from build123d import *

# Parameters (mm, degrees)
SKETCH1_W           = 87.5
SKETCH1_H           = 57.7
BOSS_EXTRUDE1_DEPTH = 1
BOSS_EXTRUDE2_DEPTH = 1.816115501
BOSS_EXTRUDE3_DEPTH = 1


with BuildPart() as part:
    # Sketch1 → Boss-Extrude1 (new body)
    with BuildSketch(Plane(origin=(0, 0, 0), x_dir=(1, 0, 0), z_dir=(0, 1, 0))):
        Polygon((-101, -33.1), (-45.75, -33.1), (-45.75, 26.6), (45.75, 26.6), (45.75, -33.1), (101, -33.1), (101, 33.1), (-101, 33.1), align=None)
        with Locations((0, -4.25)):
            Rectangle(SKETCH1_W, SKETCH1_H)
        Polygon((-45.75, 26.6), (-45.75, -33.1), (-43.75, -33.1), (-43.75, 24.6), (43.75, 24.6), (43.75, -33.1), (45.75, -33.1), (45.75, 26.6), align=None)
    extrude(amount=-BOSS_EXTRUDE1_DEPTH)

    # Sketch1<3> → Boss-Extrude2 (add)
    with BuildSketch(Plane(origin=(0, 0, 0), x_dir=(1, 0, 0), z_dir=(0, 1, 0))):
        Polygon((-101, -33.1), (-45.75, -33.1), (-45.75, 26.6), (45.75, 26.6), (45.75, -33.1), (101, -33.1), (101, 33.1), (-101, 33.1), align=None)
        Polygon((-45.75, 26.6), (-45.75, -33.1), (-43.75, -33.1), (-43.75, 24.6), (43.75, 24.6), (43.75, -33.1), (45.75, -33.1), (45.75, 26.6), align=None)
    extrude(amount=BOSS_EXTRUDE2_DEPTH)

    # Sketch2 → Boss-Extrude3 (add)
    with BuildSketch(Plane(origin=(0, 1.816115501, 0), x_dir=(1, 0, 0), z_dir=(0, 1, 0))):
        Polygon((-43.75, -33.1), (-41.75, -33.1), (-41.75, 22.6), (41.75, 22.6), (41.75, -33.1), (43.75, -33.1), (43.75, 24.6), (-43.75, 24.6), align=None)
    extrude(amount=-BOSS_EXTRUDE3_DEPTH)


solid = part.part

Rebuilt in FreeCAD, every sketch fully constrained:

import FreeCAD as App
import Part
import Sketcher
Q = App.Units.Quantity

doc = App.newDocument("Part")
body = doc.addObject("PartDesign::Body", "Body")

sketch1 = body.newObject("Sketcher::SketchObject", "Sketch")
sketch1.AttachmentSupport = (doc.getObject("XZ_Plane"), [""])
sketch1.MapMode = "FlatFace"
sketch1.addGeometry([
    Part.LineSegment(App.Vector(-101, 33.1, 0), App.Vector(101, 33.1, 0)),
    Part.LineSegment(App.Vector(101, 33.1, 0), App.Vector(101, -33.1, 0)),
    Part.LineSegment(App.Vector(101, -33.1, 0), App.Vector(-101, -33.1, 0)),
    Part.LineSegment(App.Vector(-101, -33.1, 0), App.Vector(-101, 33.1, 0)),
], False)
sketch1.addConstraint([
    Sketcher.Constraint("Coincident", 0, 2, 1, 1),
    Sketcher.Constraint("Coincident", 1, 2, 2, 1),
    Sketcher.Constraint("Coincident", 2, 2, 3, 1),
    Sketcher.Constraint("Coincident", 3, 2, 0, 1),
    Sketcher.Constraint("Horizontal", 0),
    Sketcher.Constraint("Vertical", 1),
    Sketcher.Constraint("Horizontal", 2),
    Sketcher.Constraint("Vertical", 3),
    Sketcher.Constraint("Symmetric", 0, 2, 2, 2, -1, 1),
    Sketcher.Constraint("DistanceX", 0, 1, 0, 2, Q("202 mm")),
    Sketcher.Constraint("DistanceY", 1, 2, 1, 1, Q("66.2 mm")),
])
pad1 = body.newObject("PartDesign::Pad", "Pad")
pad1.Profile = sketch1
pad1.Length = 1

sketch2 = body.newObject("Sketcher::SketchObject", "Sketch001")
sketch2.AttachmentSupport = (doc.getObject("XZ_Plane"), [""])
sketch2.MapMode = "FlatFace"
sketch2.addGeometry([
    Part.LineSegment(App.Vector(-101, 33.1, 0), App.Vector(-43.75, 33.1, 0)),
    Part.LineSegment(App.Vector(-43.75, 33.1, 0), App.Vector(-43.75, -24.6, 0)),
    Part.LineSegment(App.Vector(-43.75, -24.6, 0), App.Vector(43.75, -24.6, 0)),
    Part.LineSegment(App.Vector(43.75, -24.6, 0), App.Vector(43.75, 33.1, 0)),
    Part.LineSegment(App.Vector(43.75, 33.1, 0), App.Vector(101, 33.1, 0)),
    Part.LineSegment(App.Vector(101, 33.1, 0), App.Vector(101, -33.1, 0)),
    Part.LineSegment(App.Vector(101, -33.1, 0), App.Vector(-101, -33.1, 0)),
    Part.LineSegment(App.Vector(-101, -33.1, 0), App.Vector(-101, 33.1, 0)),
], False)
sketch2.addConstraint([
    Sketcher.Constraint("Coincident", 0, 2, 1, 1),
    Sketcher.Constraint("Coincident", 1, 2, 2, 1),
    Sketcher.Constraint("Coincident", 2, 2, 3, 1),
    Sketcher.Constraint("Coincident", 3, 2, 4, 1),
    Sketcher.Constraint("Coincident", 4, 2, 5, 1),
    Sketcher.Constraint("Coincident", 5, 2, 6, 1),
    Sketcher.Constraint("Coincident", 6, 2, 7, 1),
    Sketcher.Constraint("Coincident", 7, 2, 0, 1),
    Sketcher.Constraint("Horizontal", 0),
    Sketcher.Constraint("Vertical", 1),
    Sketcher.Constraint("Horizontal", 2),
    Sketcher.Constraint("Vertical", 3),
    Sketcher.Constraint("Horizontal", 4),
    Sketcher.Constraint("Vertical", 5),
    Sketcher.Constraint("Horizontal", 6),
    Sketcher.Constraint("Vertical", 7),
    Sketcher.Constraint("Symmetric", 4, 2, 6, 2, -1, 1),
    Sketcher.Constraint("Symmetric", 0, 2, 3, 2, -2),
    Sketcher.Constraint("DistanceX", 6, 2, 6, 1, Q("202 mm")),
    Sketcher.Constraint("DistanceX", 2, 1, 2, 2, Q("87.5 mm")),
    Sketcher.Constraint("DistanceY", 1, 2, 1, 1, Q("57.7 mm")),
    Sketcher.Constraint("DistanceY", 5, 2, 5, 1, Q("66.2 mm")),
])
pad2 = body.newObject("PartDesign::Pad", "Pad001")
pad2.Profile = sketch2
pad2.Length = 1.816116
pad2.Reversed = True

sketch3 = body.newObject("Sketcher::SketchObject", "Sketch002")
sketch3.AttachmentSupport = (doc.getObject("XZ_Plane"), [""])
sketch3.MapMode = "FlatFace"
sketch3.AttachmentOffset = App.Placement(App.Vector(0, 0, -1.816116), App.Rotation())
sketch3.addGeometry([
    Part.LineSegment(App.Vector(-43.75, 33.1, 0), App.Vector(-41.75, 33.1, 0)),
    Part.LineSegment(App.Vector(-41.75, 33.1, 0), App.Vector(-41.75, -22.6, 0)),
    Part.LineSegment(App.Vector(-41.75, -22.6, 0), App.Vector(41.75, -22.6, 0)),
    Part.LineSegment(App.Vector(41.75, -22.6, 0), App.Vector(41.75, 33.1, 0)),
    Part.LineSegment(App.Vector(41.75, 33.1, 0), App.Vector(43.75, 33.1, 0)),
    Part.LineSegment(App.Vector(43.75, 33.1, 0), App.Vector(43.75, -24.6, 0)),
    Part.LineSegment(App.Vector(43.75, -24.6, 0), App.Vector(-43.75, -24.6, 0)),
    Part.LineSegment(App.Vector(-43.75, -24.6, 0), App.Vector(-43.75, 33.1, 0)),
], False)
sketch3.addConstraint([
    Sketcher.Constraint("Coincident", 0, 2, 1, 1),
    Sketcher.Constraint("Coincident", 1, 2, 2, 1),
    Sketcher.Constraint("Coincident", 2, 2, 3, 1),
    Sketcher.Constraint("Coincident", 3, 2, 4, 1),
    Sketcher.Constraint("Coincident", 4, 2, 5, 1),
    Sketcher.Constraint("Coincident", 5, 2, 6, 1),
    Sketcher.Constraint("Coincident", 6, 2, 7, 1),
    Sketcher.Constraint("Coincident", 7, 2, 0, 1),
    Sketcher.Constraint("Horizontal", 0),
    Sketcher.Constraint("Vertical", 1),
    Sketcher.Constraint("Horizontal", 2),
    Sketcher.Constraint("Vertical", 3),
    Sketcher.Constraint("Horizontal", 4),
    Sketcher.Constraint("Vertical", 5),
    Sketcher.Constraint("Horizontal", 6),
    Sketcher.Constraint("Vertical", 7),
    Sketcher.Constraint("Symmetric", 0, 2, 3, 2, -2),
    Sketcher.Constraint("Equal", 0, 4),
    Sketcher.Constraint("DistanceX", 0, 1, 0, 2, Q("2 mm")),
    Sketcher.Constraint("DistanceX", 2, 1, 2, 2, Q("83.5 mm")),
    Sketcher.Constraint("DistanceY", 1, 2, 1, 1, Q("55.7 mm")),
    Sketcher.Constraint("DistanceY", 5, 2, 5, 1, Q("57.7 mm")),
    Sketcher.Constraint("DistanceY", -1, 1, 0, 2, Q("33.1 mm")),
])
pad3 = body.newObject("PartDesign::Pad", "Pad002")
pad3.Profile = sketch3
pad3.Length = 1

doc.recompute()
